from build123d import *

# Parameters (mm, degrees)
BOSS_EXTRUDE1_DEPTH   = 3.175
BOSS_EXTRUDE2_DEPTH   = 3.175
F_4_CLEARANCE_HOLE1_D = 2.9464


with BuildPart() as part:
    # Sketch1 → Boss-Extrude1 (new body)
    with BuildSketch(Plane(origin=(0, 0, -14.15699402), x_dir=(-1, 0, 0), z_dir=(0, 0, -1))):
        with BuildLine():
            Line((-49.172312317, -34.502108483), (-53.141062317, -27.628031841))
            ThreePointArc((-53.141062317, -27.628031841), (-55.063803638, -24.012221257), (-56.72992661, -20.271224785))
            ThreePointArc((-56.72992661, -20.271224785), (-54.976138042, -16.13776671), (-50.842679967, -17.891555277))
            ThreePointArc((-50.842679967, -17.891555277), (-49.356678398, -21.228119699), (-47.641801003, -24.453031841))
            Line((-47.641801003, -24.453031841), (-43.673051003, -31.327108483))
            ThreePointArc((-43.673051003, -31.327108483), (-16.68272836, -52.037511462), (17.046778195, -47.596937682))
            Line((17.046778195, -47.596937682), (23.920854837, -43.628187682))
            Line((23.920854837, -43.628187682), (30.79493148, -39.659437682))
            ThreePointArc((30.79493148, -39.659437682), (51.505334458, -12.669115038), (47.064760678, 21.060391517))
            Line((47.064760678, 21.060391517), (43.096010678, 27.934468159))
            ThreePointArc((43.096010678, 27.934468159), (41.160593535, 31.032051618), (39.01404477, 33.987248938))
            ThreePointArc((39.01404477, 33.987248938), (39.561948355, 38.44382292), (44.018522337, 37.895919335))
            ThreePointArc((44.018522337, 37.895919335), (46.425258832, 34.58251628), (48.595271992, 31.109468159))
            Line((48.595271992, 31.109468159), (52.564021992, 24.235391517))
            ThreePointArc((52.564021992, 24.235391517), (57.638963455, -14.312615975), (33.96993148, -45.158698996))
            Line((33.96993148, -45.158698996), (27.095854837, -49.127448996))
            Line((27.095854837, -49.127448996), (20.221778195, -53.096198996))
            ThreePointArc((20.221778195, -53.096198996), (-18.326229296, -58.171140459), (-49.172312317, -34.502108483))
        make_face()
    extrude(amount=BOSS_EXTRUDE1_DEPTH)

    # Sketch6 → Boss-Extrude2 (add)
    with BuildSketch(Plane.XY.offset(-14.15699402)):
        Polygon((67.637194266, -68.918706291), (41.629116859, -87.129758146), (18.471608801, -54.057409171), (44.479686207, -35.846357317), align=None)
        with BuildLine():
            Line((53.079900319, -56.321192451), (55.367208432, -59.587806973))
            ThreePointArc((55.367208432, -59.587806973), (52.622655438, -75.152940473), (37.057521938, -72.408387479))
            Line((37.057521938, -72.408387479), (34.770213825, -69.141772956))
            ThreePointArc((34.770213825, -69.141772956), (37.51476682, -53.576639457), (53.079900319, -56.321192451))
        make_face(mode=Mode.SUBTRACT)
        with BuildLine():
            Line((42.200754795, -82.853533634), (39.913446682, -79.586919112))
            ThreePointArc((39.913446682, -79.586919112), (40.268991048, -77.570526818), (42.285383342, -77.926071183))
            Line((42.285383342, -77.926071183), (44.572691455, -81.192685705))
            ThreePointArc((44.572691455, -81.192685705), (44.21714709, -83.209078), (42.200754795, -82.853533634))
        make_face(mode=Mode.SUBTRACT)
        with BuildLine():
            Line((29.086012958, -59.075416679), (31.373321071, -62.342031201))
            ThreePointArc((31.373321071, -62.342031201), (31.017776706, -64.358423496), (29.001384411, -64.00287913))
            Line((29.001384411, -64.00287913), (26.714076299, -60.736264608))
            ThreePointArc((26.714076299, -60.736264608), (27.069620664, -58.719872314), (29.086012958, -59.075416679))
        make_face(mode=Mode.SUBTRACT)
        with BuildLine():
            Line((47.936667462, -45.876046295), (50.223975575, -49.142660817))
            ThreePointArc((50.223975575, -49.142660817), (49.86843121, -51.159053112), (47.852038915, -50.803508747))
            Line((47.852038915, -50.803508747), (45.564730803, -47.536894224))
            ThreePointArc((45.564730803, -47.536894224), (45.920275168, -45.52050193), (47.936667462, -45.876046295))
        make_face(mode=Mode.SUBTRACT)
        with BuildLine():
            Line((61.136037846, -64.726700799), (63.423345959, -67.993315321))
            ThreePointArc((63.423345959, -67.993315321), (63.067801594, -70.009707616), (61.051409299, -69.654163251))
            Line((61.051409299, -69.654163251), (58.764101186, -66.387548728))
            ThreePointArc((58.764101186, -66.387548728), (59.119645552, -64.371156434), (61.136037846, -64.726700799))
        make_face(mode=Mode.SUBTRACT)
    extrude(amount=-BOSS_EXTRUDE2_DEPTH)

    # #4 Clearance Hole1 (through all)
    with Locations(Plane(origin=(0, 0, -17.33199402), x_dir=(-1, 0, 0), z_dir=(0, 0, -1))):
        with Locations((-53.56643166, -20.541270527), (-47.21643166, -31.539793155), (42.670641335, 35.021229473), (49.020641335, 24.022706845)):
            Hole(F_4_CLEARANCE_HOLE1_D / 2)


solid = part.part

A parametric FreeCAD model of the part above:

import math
import FreeCAD as App
import Part
import Sketcher
from FreeCAD import Vector
Q = App.Units.Quantity


def add_polygon(sketch, points):
    """Adds a closed chain of lines whose ends are joined by coincident constraints."""
    first, n = sketch.GeometryCount, len(points)
    for a, b in zip(points, points[1:] + points[:1]):
        sketch.addGeometry(Part.LineSegment(App.Vector(*a, 0), App.Vector(*b, 0)), False)
    for i in range(n):
        sketch.addConstraint(Sketcher.Constraint("Coincident", first + i, 2, first + (i + 1) % n, 1))

doc = App.newDocument("Part")
body = doc.addObject("PartDesign::Body", "Body")

# Sketch on XY plane
sketch1 = body.newObject("Sketcher::SketchObject", "Sketch")
sketch1.AttachmentSupport = (doc.getObject("XY_Plane"), [""])
sketch1.MapMode = "FlatFace"
sketch1.AttachmentOffset = App.Placement(Vector(0, 0, -14.156994), App.Rotation())
sketch1.addGeometry(Part.LineSegment(Vector(53.141062, -27.628032, 0), Vector(49.172312, -34.502108, 0)), False)
sketch1.addGeometry(Part.ArcOfCircle(Part.Circle(Vector(5.178222, -9.102108, 0), Vector(0, 0, 1), 50.8), math.radians(-120), math.radians(-30)), False)
sketch1.addGeometry(Part.LineSegment(Vector(-20.221778, -53.096199, 0), Vector(-27.095855, -49.127449, 0)), False)
sketch1.addGeometry(Part.LineSegment(Vector(-27.095855, -49.127449, 0), Vector(-33.969931, -45.158699, 0)), False)
sketch1.addGeometry(Part.ArcOfCircle(Part.Circle(Vector(-8.569931, -1.164608, 0), Vector(0, 0, 1), 50.8), math.radians(150), math.radians(240)), False)
sketch1.addGeometry(Part.LineSegment(Vector(-52.564022, 24.235392, 0), Vector(-48.595272, 31.109468, 0)), False)
sketch1.addGeometry(Part.ArcOfCircle(Part.Circle(Vector(2.272895, 1.740718, 0), Vector(0, 0, 1), 58.7375), math.radians(142.00893), math.radians(150)), False)
sketch1.addGeometry(Part.ArcOfCircle(Part.Circle(Vector(-41.516284, 35.941584, 0), Vector(0, 0, 1), 3.175), math.radians(-37.99107), math.radians(142.00893)), False)
sketch1.addGeometry(Part.ArcOfCircle(Part.Circle(Vector(2.272895, 1.740718, 0), Vector(0, 0, 1), 52.3875), math.radians(142.00893), math.radians(150)), False)
sketch1.addGeometry(Part.LineSegment(Vector(-43.096011, 27.934468, 0), Vector(-47.064761, 21.060392, 0)), False)
sketch1.addGeometry(Part.ArcOfCircle(Part.Circle(Vector(-8.569931, -1.164608, 0), Vector(0, 0, 1), 44.45), math.radians(150), math.radians(240)), False)
sketch1.addGeometry(Part.LineSegment(Vector(-30.794931, -39.659438, 0), Vector(-23.920855, -43.628188, 0)), False)
sketch1.addGeometry(Part.LineSegment(Vector(-23.920855, -43.628188, 0), Vector(-17.046778, -47.596938, 0)), False)
sketch1.addGeometry(Part.ArcOfCircle(Part.Circle(Vector(5.178222, -9.102108, 0), Vector(0, 0, 1), 44.45), math.radians(-120), math.radians(-30)), False)
sketch1.addGeometry(Part.LineSegment(Vector(43.673051, -31.327108, 0), Vector(47.641801, -24.453032, 0)), False)
sketch1.addGeometry(Part.ArcOfCircle(Part.Circle(Vector(2.272895, 1.740718, 0), Vector(0, 0, 1), 52.3875), math.radians(-30), math.radians(-22.00893)), False)
sketch1.addGeometry(Part.ArcOfCircle(Part.Circle(Vector(53.786303, -19.08139, 0), Vector(0, 0, 1), 3.175), math.radians(-22.00893), math.radians(157.99107)), False)
sketch1.addGeometry(Part.ArcOfCircle(Part.Circle(Vector(2.272895, 1.740718, 0), Vector(0, 0, 1), 58.7375), math.radians(-30), math.radians(-22.00893)), False)
sketch1.addConstraint(Sketcher.Constraint("Tangent", 0, 2, 1, 2))
sketch1.addConstraint(Sketcher.Constraint("Tangent", 1, 1, 2, 1))
sketch1.addConstraint(Sketcher.Constraint("Coincident", 2, 2, 3, 1))
sketch1.addConstraint(Sketcher.Constraint("Tangent", 3, 2, 4, 2))
sketch1.addConstraint(Sketcher.Constraint("Tangent", 4, 1, 5, 1))
sketch1.addConstraint(Sketcher.Constraint("Tangent", 5, 2, 6, 2))
sketch1.addConstraint(Sketcher.Constraint("Tangent", 6, 1, 7, 2))
sketch1.addConstraint(Sketcher.Constraint("Tangent", 7, 1, 8, 1))
sketch1.addConstraint(Sketcher.Constraint("Tangent", 8, 2, 9, 1))
sketch1.addConstraint(Sketcher.Constraint("Tangent", 9, 2, 10, 1))
sketch1.addConstraint(Sketcher.Constraint("Tangent", 10, 2, 11, 1))
sketch1.addConstraint(Sketcher.Constraint("Coincident", 11, 2, 12, 1))
sketch1.addConstraint(Sketcher.Constraint("Tangent", 12, 2, 13, 1))
sketch1.addConstraint(Sketcher.Constraint("Tangent", 13, 2, 14, 1))
sketch1.addConstraint(Sketcher.Constraint("Tangent", 14, 2, 15, 1))
sketch1.addConstraint(Sketcher.Constraint("Tangent", 15, 2, 16, 2))
sketch1.addConstraint(Sketcher.Constraint("Tangent", 16, 1, 17, 2))
sketch1.addConstraint(Sketcher.Constraint("Tangent", 17, 1, 0, 1))
sketch1.addConstraint(Sketcher.Constraint("Coincident", 8, 3, 6, 3))
sketch1.addConstraint(Sketcher.Constraint("Coincident", 10, 3, 4, 3))
sketch1.addConstraint(Sketcher.Constraint("Coincident", 13, 3, 1, 3))
sketch1.addConstraint(Sketcher.Constraint("Coincident", 15, 3, 6, 3))
sketch1.addConstraint(Sketcher.Constraint("Coincident", 17, 3, 6, 3))
sketch1.addConstraint(Sketcher.Constraint("Equal", 1, 4))
sketch1.addConstraint(Sketcher.Constraint("Equal", 10, 13))
sketch1.addConstraint(Sketcher.Constraint("Equal", 8, 15))
sketch1.addConstraint(Sketcher.Constraint("Equal", 7, 16))
sketch1.addConstraint(Sketcher.Constraint("Perpendicular", 0, 2))
sketch1.addConstraint(Sketcher.Constraint("Parallel", 2, 3))
sketch1.addConstraint(Sketcher.Constraint("Perpendicular", 3, 5))
sketch1.addConstraint(Sketcher.Constraint("Parallel", 5, 9))
sketch1.addConstraint(Sketcher.Constraint("Perpendicular", 9, 11))
sketch1.addConstraint(Sketcher.Constraint("Equal", 0, 2))
sketch1.addConstraint(Sketcher.Constraint("Equal", 2, 3))
sketch1.addConstraint(Sketcher.Constraint("Equal", 9, 11))
sketch1.addConstraint(Sketcher.Constraint("Radius", 1, Q("2 in")))
sketch1.addConstraint(Sketcher.Constraint("Radius", 10, Q("1.75 in")))
sketch1.addConstraint(Sketcher.Constraint("Angle", 0, Q("-120 deg")))
sketch1.addConstraint(Sketcher.Constraint("Radius", 6, Q("2.3125 in")))
sketch1.addConstraint(Sketcher.Constraint("DistanceY", 1, 1, -1, 1, 53.096199))
sketch1.addConstraint(Sketcher.Constraint("DistanceX", -1, 1, 14, 2, 47.641801))
sketch1.addConstraint(Sketcher.Constraint("DistanceX", 4, 1, 6, 1, 8.5455))
sketch1.addConstraint(Sketcher.Constraint("DistanceY", 16, 3, -1, 1, 19.08139))
pad1 = body.newObject("PartDesign::Pad", "Pad")
pad1.Profile = sketch1
pad1.Length = Q("0.125 in")
pad1.Reversed = True

# Sketch on XY plane
sketch2 = body.newObject("Sketcher::SketchObject", "Sketch001")
sketch2.AttachmentSupport = (doc.getObject("XY_Plane"), [""])
sketch2.MapMode = "FlatFace"
sketch2.AttachmentOffset = App.Placement(Vector(0, 0, -14.156994), App.Rotation())
add_polygon(sketch2, [(41.629117, -87.129758), (67.637194, -68.918706), (44.479686, -35.846357), (18.471609, -54.057409)])  # lines 0-3
sketch2.addGeometry(Part.LineSegment(Vector(61.136038, -64.726701, 0), Vector(63.423346, -67.993315, 0)), False)  # 4
sketch2.addGeometry(Part.ArcOfCircle(Part.Circle(Vector(62.237378, -68.823739, 0), Vector(0, 0, 1), 1.4478), math.radians(-145), math.radians(35)), False)  # 5
sketch2.addGeometry(Part.LineSegment(Vector(61.051409, -69.654163, 0), Vector(58.764101, -66.387549, 0)), False)  # 6
sketch2.addGeometry(Part.ArcOfCircle(Part.Circle(Vector(59.95007, -65.557125, 0), Vector(0, 0, 1), 1.4478), math.radians(35), math.radians(215)), False)  # 7
sketch2.addGeometry(Part.LineSegment(Vector(42.200755, -82.853534, 0), Vector(39.913447, -79.586919, 0)), False)  # 8
sketch2.addGeometry(Part.ArcOfCircle(Part.Circle(Vector(41.099415, -78.756495, 0), Vector(0, 0, 1), 1.4478), math.radians(35), math.radians(215)), False)  # 9
sketch2.addGeometry(Part.LineSegment(Vector(42.285383, -77.926071, 0), Vector(44.572691, -81.192686, 0)), False)  # 10
sketch2.addGeometry(Part.ArcOfCircle(Part.Circle(Vector(43.386723, -82.02311, 0), Vector(0, 0, 1), 1.4478), math.radians(-145), math.radians(35)), False)  # 11
sketch2.addGeometry(Part.LineSegment(Vector(53.0799, -56.321192, 0), Vector(55.367208, -59.587807, 0)), False)  # 12
sketch2.addGeometry(Part.ArcOfCircle(Part.Circle(Vector(46.212365, -65.998097, 0), Vector(0, 0, 1), 11.176), math.radians(-145), math.radians(35)), False)  # 13
sketch2.addGeometry(Part.LineSegment(Vector(37.057522, -72.408387, 0), Vector(34.770214, -69.141773, 0)), False)  # 14
sketch2.addGeometry(Part.ArcOfCircle(Part.Circle(Vector(43.925057, -62.731483, 0), Vector(0, 0, 1), 11.176), math.radians(35), math.radians(215)), False)  # 15
sketch2.addGeometry(Part.LineSegment(Vector(47.936667, -45.876046, 0), Vector(50.223976, -49.142661, 0)), False)  # 16
sketch2.addGeometry(Part.ArcOfCircle(Part.Circle(Vector(49.038007, -49.973085, 0), Vector(0, 0, 1), 1.4478), math.radians(-145), math.radians(35)), False)  # 17
sketch2.addGeometry(Part.LineSegment(Vector(47.852039, -50.803509, 0), Vector(45.564731, -47.536894, 0)), False)  # 18
sketch2.addGeometry(Part.ArcOfCircle(Part.Circle(Vector(46.750699, -46.70647, 0), Vector(0, 0, 1), 1.4478), math.radians(35), math.radians(215)), False)  # 19
sketch2.addGeometry(Part.LineSegment(Vector(29.086013, -59.075417, 0), Vector(31.373321, -62.342031, 0)), False)  # 20
sketch2.addGeometry(Part.ArcOfCircle(Part.Circle(Vector(30.187353, -63.172455, 0), Vector(0, 0, 1), 1.4478), math.radians(-145), math.radians(35)), False)  # 21
sketch2.addGeometry(Part.LineSegment(Vector(29.001384, -64.002879, 0), Vector(26.714076, -60.736265, 0)), False)  # 22
sketch2.addGeometry(Part.ArcOfCircle(Part.Circle(Vector(27.900045, -59.905841, 0), Vector(0, 0, 1), 1.4478), math.radians(35), math.radians(215)), False)  # 23
sketch2.addConstraint(Sketcher.Constraint("Tangent", 4, 2, 5, 2))
sketch2.addConstraint(Sketcher.Constraint("Tangent", 5, 1, 6, 1))
sketch2.addConstraint(Sketcher.Constraint("Tangent", 6, 2, 7, 2))
sketch2.addConstraint(Sketcher.Constraint("Tangent", 7, 1, 4, 1))
sketch2.addConstraint(Sketcher.Constraint("Tangent", 8, 2, 9, 2))
sketch2.addConstraint(Sketcher.Constraint("Tangent", 9, 1, 10, 1))
sketch2.addConstraint(Sketcher.Constraint("Tangent", 10, 2, 11, 2))
sketch2.addConstraint(Sketcher.Constraint("Tangent", 11, 1, 8, 1))
sketch2.addConstraint(Sketcher.Constraint("Tangent", 12, 2, 13, 2))
sketch2.addConstraint(Sketcher.Constraint("Tangent", 13, 1, 14, 1))
sketch2.addConstraint(Sketcher.Constraint("Tangent", 14, 2, 15, 2))
sketch2.addConstraint(Sketcher.Constraint("Tangent", 15, 1, 12, 1))
sketch2.addConstraint(Sketcher.Constraint("Tangent", 16, 2, 17, 2))
sketch2.addConstraint(Sketcher.Constraint("Tangent", 17, 1, 18, 1))
sketch2.addConstraint(Sketcher.Constraint("Tangent", 18, 2, 19, 2))
sketch2.addConstraint(Sketcher.Constraint("Tangent", 19, 1, 16, 1))
sketch2.addConstraint(Sketcher.Constraint("Tangent", 20, 2, 21, 2))
sketch2.addConstraint(Sketcher.Constraint("Tangent", 21, 1, 22, 1))
sketch2.addConstraint(Sketcher.Constraint("Tangent", 22, 2, 23, 2))
sketch2.addConstraint(Sketcher.Constraint("Tangent", 23, 1, 20, 1))
sketch2.addConstraint(Sketcher.Constraint("Equal", 5, 7))
sketch2.addConstraint(Sketcher.Constraint("Equal", 7, 9))
sketch2.addConstraint(Sketcher.Constraint("Equal", 9, 11))
sketch2.addConstraint(Sketcher.Constraint("Equal", 13, 15))
sketch2.addConstraint(Sketcher.Constraint("Equal", 11, 17))
sketch2.addConstraint(Sketcher.Constraint("Equal", 17, 19))
sketch2.addConstraint(Sketcher.Constraint("Equal", 19, 21))
sketch2.addConstraint(Sketcher.Constraint("Equal", 21, 23))
sketch2.addConstraint(Sketcher.Constraint("Perpendicular", 0, 1))
sketch2.addConstraint(Sketcher.Constraint("Perpendicular", 1, 2))
sketch2.addConstraint(Sketcher.Constraint("Perpendicular", 2, 3))
sketch2.addConstraint(Sketcher.Constraint("Parallel", 3, 4))
sketch2.addConstraint(Sketcher.Constraint("Parallel", 6, 8))
sketch2.addConstraint(Sketcher.Constraint("Parallel", 10, 12))
sketch2.addConstraint(Sketcher.Constraint("Parallel", 14, 16))
sketch2.addConstraint(Sketcher.Constraint("Parallel", 18, 20))
sketch2.addConstraint(Sketcher.Constraint("Equal", 6, 8))
sketch2.addConstraint(Sketcher.Constraint("Equal", 10, 12))
sketch2.addConstraint(Sketcher.Constraint("Equal", 14, 16))
sketch2.addConstraint(Sketcher.Constraint("Equal", 18, 20))
sketch2.addConstraint(Sketcher.Constraint("Radius", 13, Q("0.44 in")))
sketch2.addConstraint(Sketcher.Constraint("Angle", 0, Q("35 deg")))
sketch2.addConstraint(Sketcher.Constraint("Radius", 5, Q("0.057 in")))
sketch2.addConstraint(Sketcher.Constraint("Distance", 0, Q("1.25 in")))
sketch2.addConstraint(Sketcher.Constraint("Distance", 4, Q("0.157 in")))
sketch2.addConstraint(Sketcher.Constraint("DistanceY", 8, 2, 15, 3, Q("0.6635999 in")))
sketch2.addConstraint(Sketcher.Constraint("DistanceX", -1, 1, 19, 3, 46.750699))
sketch2.addConstraint(Sketcher.Constraint("DistanceX", -1, 1, 6, 2, 58.764101))
sketch2.addConstraint(Sketcher.Constraint("DistanceY", 7, 1, -1, 1, 64.726701))
sketch2.addConstraint(Sketcher.Constraint("DistanceX", -1, 1, 15, 1, 53.0799))
sketch2.addConstraint(Sketcher.Constraint("DistanceX", 9, 3, 3, 2, 0.529702))
sketch2.addConstraint(Sketcher.Constraint("DistanceX", 13, 1, 11, 3, 6.329201))
sketch2.addConstraint(Sketcher.Constraint("DistanceY", 12, 2, 17, 1, 8.784298))
sketch2.addConstraint(Sketcher.Constraint("DistanceX", 20, 2, 13, 1, 5.684201))
sketch2.addConstraint(Sketcher.Constraint("DistanceY", 11, 3, -1, 1, 82.02311))
sketch2.addConstraint(Sketcher.Constraint("DistanceY", 23, 3, -1, 1, 59.905841))
sketch2.addConstraint(Sketcher.Constraint("DistanceX", -1, 1, 2, 2, 18.471609))
sketch2.addConstraint(Sketcher.Constraint("DistanceY", 2, 2, -1, 1, 54.057409))
pad2 = body.newObject("PartDesign::Pad", "Pad001")
pad2.Profile = sketch2
pad2.Length = Q("0.125 in")
pad2.Reversed = True

# Sketch on XY plane
sketch3 = body.newObject("Sketcher::SketchObject", "Sketch002")
sketch3.AttachmentSupport = (doc.getObject("XY_Plane"), [""])
sketch3.MapMode = "FlatFace"
sketch3.AttachmentOffset = App.Placement(Vector(0, 0, -17.331994), App.Rotation())
sketch3.addGeometry(Part.Circle(Vector(53.566432, -20.541271, 0), Vector(0, 0, 1), 1.4732), False)
sketch3.addGeometry(Part.Circle(Vector(47.216432, -31.539793, 0), Vector(0, 0, 1), 1.4732), False)
sketch3.addGeometry(Part.Circle(Vector(-42.670641, 35.021229, 0), Vector(0, 0, 1), 1.4732), False)
sketch3.addGeometry(Part.Circle(Vector(-49.020641, 24.022707, 0), Vector(0, 0, 1), 1.4732), False)
sketch3.addConstraint(Sketcher.Constraint("Equal", 0, 1))
sketch3.addConstraint(Sketcher.Constraint("Equal", 1, 2))
sketch3.addConstraint(Sketcher.Constraint("Equal", 2, 3))
sketch3.addConstraint(Sketcher.Constraint("Diameter", 0, Q("0.116 in")))
sketch3.addConstraint(Sketcher.Constraint("DistanceX", 1, 3, 0, 3, Q("0.25 in")))
sketch3.addConstraint(Sketcher.Constraint("DistanceX", 3, 3, 2, 3, Q("0.25 in")))
sketch3.addConstraint(Sketcher.Constraint("DistanceY", 0, 3, 2, 3, Q("2.1875 in")))
sketch3.addConstraint(Sketcher.Constraint("DistanceY", 1, 3, 3, 3, Q("2.1875 in")))
sketch3.addConstraint(Sketcher.Constraint("DistanceX", -1, 1, 0, 3, 53.566432))
sketch3.addConstraint(Sketcher.Constraint("DistanceY", 0, 3, -1, 1, 20.541271))
sketch3.addConstraint(Sketcher.Constraint("DistanceX", 2, 3, -1, 1, 42.670641))
sketch3.addConstraint(Sketcher.Constraint("DistanceY", 1, 3, -1, 1, 31.539793))
doc.recompute()
hole = body.newObject("PartDesign::Hole", "Hole")
hole.Profile = sketch3
hole.ThreadType = "None"
hole.Diameter = Q("0.116 in")
hole.DepthType = "ThroughAll"
hole.Reversed = True

doc.recompute()
